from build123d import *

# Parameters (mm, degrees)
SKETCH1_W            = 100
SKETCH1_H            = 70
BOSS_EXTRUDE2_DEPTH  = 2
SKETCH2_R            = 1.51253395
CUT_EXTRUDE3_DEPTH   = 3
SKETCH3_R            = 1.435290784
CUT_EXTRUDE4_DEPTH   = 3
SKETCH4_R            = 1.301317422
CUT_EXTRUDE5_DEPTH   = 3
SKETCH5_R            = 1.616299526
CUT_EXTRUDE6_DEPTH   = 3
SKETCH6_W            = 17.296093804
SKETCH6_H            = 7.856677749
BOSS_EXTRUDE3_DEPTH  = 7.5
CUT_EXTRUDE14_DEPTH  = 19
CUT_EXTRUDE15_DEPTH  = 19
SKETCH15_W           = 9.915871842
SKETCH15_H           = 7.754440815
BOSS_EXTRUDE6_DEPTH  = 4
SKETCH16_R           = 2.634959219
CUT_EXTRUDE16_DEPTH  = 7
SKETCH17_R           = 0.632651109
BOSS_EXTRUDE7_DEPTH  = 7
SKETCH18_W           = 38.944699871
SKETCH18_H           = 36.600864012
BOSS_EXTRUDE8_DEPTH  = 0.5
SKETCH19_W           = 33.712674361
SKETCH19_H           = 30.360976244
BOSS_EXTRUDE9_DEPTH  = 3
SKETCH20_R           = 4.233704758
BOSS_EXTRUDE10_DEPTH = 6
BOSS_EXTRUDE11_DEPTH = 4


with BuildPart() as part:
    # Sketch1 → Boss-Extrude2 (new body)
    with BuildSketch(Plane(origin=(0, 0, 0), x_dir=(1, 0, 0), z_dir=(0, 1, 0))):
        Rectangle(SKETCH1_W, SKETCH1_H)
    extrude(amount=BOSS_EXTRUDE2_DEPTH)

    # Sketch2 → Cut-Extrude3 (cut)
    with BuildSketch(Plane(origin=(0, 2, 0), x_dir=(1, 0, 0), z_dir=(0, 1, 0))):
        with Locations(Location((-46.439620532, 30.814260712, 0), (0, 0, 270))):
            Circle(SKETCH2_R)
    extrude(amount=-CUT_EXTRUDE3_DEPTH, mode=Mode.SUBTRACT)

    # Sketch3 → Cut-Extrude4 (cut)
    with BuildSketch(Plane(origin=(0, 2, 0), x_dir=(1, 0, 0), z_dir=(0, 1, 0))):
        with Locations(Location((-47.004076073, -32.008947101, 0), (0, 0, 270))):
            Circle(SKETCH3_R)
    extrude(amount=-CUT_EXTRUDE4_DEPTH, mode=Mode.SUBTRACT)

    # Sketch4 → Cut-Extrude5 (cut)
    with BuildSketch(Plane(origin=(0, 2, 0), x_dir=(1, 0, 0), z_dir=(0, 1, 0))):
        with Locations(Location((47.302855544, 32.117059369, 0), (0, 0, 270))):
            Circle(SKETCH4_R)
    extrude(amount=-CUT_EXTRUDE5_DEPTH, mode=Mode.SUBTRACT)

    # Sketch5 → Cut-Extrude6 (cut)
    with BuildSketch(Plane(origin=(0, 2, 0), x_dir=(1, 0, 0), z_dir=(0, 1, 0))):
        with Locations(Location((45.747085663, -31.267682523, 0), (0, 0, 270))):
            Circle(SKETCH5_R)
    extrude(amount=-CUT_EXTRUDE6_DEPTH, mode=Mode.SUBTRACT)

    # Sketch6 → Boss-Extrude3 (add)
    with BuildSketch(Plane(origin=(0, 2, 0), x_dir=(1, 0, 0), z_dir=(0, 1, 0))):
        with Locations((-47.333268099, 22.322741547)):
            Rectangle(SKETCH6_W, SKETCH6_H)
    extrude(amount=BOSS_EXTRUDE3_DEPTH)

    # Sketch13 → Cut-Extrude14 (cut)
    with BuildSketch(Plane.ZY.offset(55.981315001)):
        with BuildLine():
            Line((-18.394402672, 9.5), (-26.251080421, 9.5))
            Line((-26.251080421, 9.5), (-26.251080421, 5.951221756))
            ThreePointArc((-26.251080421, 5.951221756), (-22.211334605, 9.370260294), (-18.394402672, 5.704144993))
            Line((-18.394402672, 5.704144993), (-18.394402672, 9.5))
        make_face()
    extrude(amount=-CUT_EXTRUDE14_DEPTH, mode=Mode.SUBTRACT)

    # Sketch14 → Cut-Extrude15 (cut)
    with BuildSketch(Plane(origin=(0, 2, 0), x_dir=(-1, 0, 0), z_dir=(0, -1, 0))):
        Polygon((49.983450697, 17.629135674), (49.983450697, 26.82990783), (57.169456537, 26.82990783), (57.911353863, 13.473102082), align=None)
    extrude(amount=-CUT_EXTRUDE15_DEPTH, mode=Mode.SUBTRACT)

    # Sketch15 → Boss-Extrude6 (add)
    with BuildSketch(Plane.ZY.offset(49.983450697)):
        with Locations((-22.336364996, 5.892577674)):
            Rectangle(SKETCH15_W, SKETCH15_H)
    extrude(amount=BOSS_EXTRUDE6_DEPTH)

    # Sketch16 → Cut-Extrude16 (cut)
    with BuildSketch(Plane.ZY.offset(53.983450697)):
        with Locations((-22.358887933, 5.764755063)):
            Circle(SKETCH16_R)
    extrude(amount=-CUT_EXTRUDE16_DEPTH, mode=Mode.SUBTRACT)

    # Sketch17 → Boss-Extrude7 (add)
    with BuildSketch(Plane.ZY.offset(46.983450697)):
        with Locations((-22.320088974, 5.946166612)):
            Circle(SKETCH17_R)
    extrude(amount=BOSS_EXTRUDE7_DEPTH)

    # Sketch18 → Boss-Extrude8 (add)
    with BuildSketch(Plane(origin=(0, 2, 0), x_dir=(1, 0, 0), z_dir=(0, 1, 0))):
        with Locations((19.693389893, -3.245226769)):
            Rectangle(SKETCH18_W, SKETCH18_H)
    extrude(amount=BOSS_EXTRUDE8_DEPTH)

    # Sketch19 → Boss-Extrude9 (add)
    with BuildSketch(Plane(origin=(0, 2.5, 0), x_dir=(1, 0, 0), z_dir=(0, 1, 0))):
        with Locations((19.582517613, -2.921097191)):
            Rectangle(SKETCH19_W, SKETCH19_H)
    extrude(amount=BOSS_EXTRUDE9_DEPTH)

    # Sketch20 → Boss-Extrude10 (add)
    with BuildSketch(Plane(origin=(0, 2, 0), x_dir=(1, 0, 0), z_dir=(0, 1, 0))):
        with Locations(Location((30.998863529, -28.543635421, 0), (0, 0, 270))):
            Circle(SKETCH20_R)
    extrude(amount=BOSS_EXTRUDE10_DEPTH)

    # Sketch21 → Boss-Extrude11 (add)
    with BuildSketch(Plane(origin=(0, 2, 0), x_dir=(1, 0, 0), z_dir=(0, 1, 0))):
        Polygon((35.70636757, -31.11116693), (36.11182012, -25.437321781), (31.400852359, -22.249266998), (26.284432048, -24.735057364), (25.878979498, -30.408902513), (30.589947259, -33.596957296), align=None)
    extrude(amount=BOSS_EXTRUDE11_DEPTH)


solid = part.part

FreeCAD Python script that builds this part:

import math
import FreeCAD as App
import Part
import Sketcher

doc = App.newDocument("Part")
params = doc.addObject("Spreadsheet::Sheet", "Params")
for row, (alias, value) in enumerate([
    ("sketch1_width", "100 mm"),
    ("sketch1_height", "70 mm"),
    ("pad1_length", "2 mm"),
    ("pocket1_length", "3 mm"),
    ("pocket2_length", "3 mm"),
    ("pocket3_length", "3 mm"),
    ("pocket4_length", "3 mm"),
    ("pad2_length", "7.5 mm"),
    ("pocket5_length", "19 mm"),
    ("pocket6_length", "19 mm"),
    ("pad3_length", "4 mm"),
    ("pocket7_length", "7 mm"),
    ("pad4_length", "7 mm"),
    ("pad5_length", "0.5 mm"),
    ("pad6_length", "3 mm"),
    ("pad7_length", "6 mm"),
    ("pad8_length", "4 mm"),
], start=1):
    params.set(f"A{row}", alias)
    params.set(f"B{row}", "=" + value)
    params.setAlias(f"B{row}", alias)

body = doc.addObject("PartDesign::Body", "Body")

sketch1 = body.newObject("Sketcher::SketchObject", "Sketch")
sketch1.AttachmentSupport = (doc.getObject("XZ_Plane"), [""])
sketch1.MapMode = "FlatFace"
sketch1.addGeometry([
    Part.LineSegment(App.Vector(-50, -35, 0), App.Vector(-50, 35, 0)),
    Part.LineSegment(App.Vector(-50, 35, 0), App.Vector(50, 35, 0)),
    Part.LineSegment(App.Vector(50, 35, 0), App.Vector(50, -35, 0)),
    Part.LineSegment(App.Vector(50, -35, 0), App.Vector(-50, -35, 0)),
], False)
sketch1.addConstraint([
    Sketcher.Constraint("Coincident", 0, 2, 1, 1),
    Sketcher.Constraint("Coincident", 1, 2, 2, 1),
    Sketcher.Constraint("Coincident", 2, 2, 3, 1),
    Sketcher.Constraint("Coincident", 3, 2, 0, 1),
    Sketcher.Constraint("Vertical", 0),
    Sketcher.Constraint("Horizontal", 1),
    Sketcher.Constraint("Vertical", 2),
    Sketcher.Constraint("Horizontal", 3),
    Sketcher.Constraint("Symmetric", 0, 2, 2, 2, -1, 1),
    Sketcher.Constraint("DistanceX", 1, 1, 1, 2, 100.0),
    Sketcher.Constraint("DistanceY", 0, 1, 0, 2, 70.0),
])
sketch1.setExpression("Constraints[9]", "Params.sketch1_width")
sketch1.setExpression("Constraints[10]", "Params.sketch1_height")
pad1 = body.newObject("PartDesign::Pad", "Pad")
pad1.Profile = sketch1
pad1.setExpression("Length", "Params.pad1_length")
pad1.Reversed = True

sketch2 = body.newObject("Sketcher::SketchObject", "Sketch001")
sketch2.AttachmentSupport = (doc.getObject("XZ_Plane"), [""])
sketch2.MapMode = "FlatFace"
sketch2.AttachmentOffset = App.Placement(App.Vector(0, 0, -2), App.Rotation())
sketch2.addGeometry(Part.Circle(App.Vector(-46.4, -30.8, 0), App.Vector(0, 0, 1), 1.5), False)
sketch2.addConstraint([
    Sketcher.Constraint("Diameter", 0, 3.025068),
    Sketcher.Constraint("DistanceX", 0, 3, -1, 1, 46.439621),
    Sketcher.Constraint("DistanceY", 0, 3, -1, 1, 30.814261),
])
pocket1 = body.newObject("PartDesign::Pocket", "Pocket")
pocket1.Profile = sketch2
pocket1.setExpression("Length", "Params.pocket1_length")
pocket1.Reversed = True

sketch3 = body.newObject("Sketcher::SketchObject", "Sketch002")
sketch3.AttachmentSupport = (doc.getObject("XZ_Plane"), [""])
sketch3.MapMode = "FlatFace"
sketch3.AttachmentOffset = App.Placement(App.Vector(0, 0, -2), App.Rotation())
sketch3.addGeometry(Part.Circle(App.Vector(-47, 32, 0), App.Vector(0, 0, 1), 1.4), False)
sketch3.addConstraint([
    Sketcher.Constraint("Diameter", 0, 2.870582),
    Sketcher.Constraint("DistanceX", 0, 3, -1, 1, 47.004076),
    Sketcher.Constraint("DistanceY", -1, 1, 0, 3, 32.008947),
])
pocket2 = body.newObject("PartDesign::Pocket", "Pocket001")
pocket2.Profile = sketch3
pocket2.setExpression("Length", "Params.pocket2_length")
pocket2.Reversed = True

sketch4 = body.newObject("Sketcher::SketchObject", "Sketch003")
sketch4.AttachmentSupport = (doc.getObject("XZ_Plane"), [""])
sketch4.MapMode = "FlatFace"
sketch4.AttachmentOffset = App.Placement(App.Vector(0, 0, -2), App.Rotation())
sketch4.addGeometry(Part.Circle(App.Vector(47.3, -32.1, 0), App.Vector(0, 0, 1), 1.3), False)
sketch4.addConstraint([
    Sketcher.Constraint("Diameter", 0, 2.602635),
    Sketcher.Constraint("DistanceY", 0, 3, -1, 1, 32.117059),
    Sketcher.Constraint("DistanceX", -1, 1, 0, 3, 47.302856),
])
pocket3 = body.newObject("PartDesign::Pocket", "Pocket002")
pocket3.Profile = sketch4
pocket3.setExpression("Length", "Params.pocket3_length")
pocket3.Reversed = True

sketch5 = body.newObject("Sketcher::SketchObject", "Sketch004")
sketch5.AttachmentSupport = (doc.getObject("XZ_Plane"), [""])
sketch5.MapMode = "FlatFace"
sketch5.AttachmentOffset = App.Placement(App.Vector(0, 0, -2), App.Rotation())
sketch5.addGeometry(Part.Circle(App.Vector(45.7, 31.3, 0), App.Vector(0, 0, 1), 1.6), False)
sketch5.addConstraint([
    Sketcher.Constraint("Diameter", 0, 3.232599),
    Sketcher.Constraint("DistanceX", -1, 1, 0, 3, 45.747086),
    Sketcher.Constraint("DistanceY", -1, 1, 0, 3, 31.267683),
])
pocket4 = body.newObject("PartDesign::Pocket", "Pocket003")
pocket4.Profile = sketch5
pocket4.setExpression("Length", "Params.pocket4_length")
pocket4.Reversed = True

sketch6 = body.newObject("Sketcher::SketchObject", "Sketch005")
sketch6.AttachmentSupport = (doc.getObject("XZ_Plane"), [""])
sketch6.MapMode = "FlatFace"
sketch6.AttachmentOffset = App.Placement(App.Vector(0, 0, -2), App.Rotation())
sketch6.addGeometry([
    Part.LineSegment(App.Vector(-56, -26, 0), App.Vector(-56, -18, 0)),
    Part.LineSegment(App.Vector(-56, -18, 0), App.Vector(-39, -18, 0)),
    Part.LineSegment(App.Vector(-39, -18, 0), App.Vector(-39, -26, 0)),
    Part.LineSegment(App.Vector(-39, -26, 0), App.Vector(-56, -26, 0)),
], False)
sketch6.addConstraint([
    Sketcher.Constraint("Coincident", 0, 2, 1, 1),
    Sketcher.Constraint("Coincident", 1, 2, 2, 1),
    Sketcher.Constraint("Coincident", 2, 2, 3, 1),
    Sketcher.Constraint("Coincident", 3, 2, 0, 1),
    Sketcher.Constraint("Vertical", 0),
    Sketcher.Constraint("Horizontal", 1),
    Sketcher.Constraint("Vertical", 2),
    Sketcher.Constraint("Horizontal", 3),
    Sketcher.Constraint("DistanceX", 1, 1, 1, 2, 17.296094),
    Sketcher.Constraint("DistanceY", 0, 1, 0, 2, 7.856678),
    Sketcher.Constraint("DistanceX", 1, 2, -1, 1, 38.685221),
    Sketcher.Constraint("DistanceY", 2, 2, -1, 1, 26.25108),
])
pad2 = body.newObject("PartDesign::Pad", "Pad001")
pad2.Profile = sketch6
pad2.setExpression("Length", "Params.pad2_length")
pad2.Reversed = True

sketch7 = body.newObject("Sketcher::SketchObject", "Sketch006")
sketch7.AttachmentSupport = (doc.getObject("YZ_Plane"), [""])
sketch7.MapMode = "FlatFace"
sketch7.AttachmentOffset = App.Placement(App.Vector(0, 0, -55.981315), App.Rotation())
sketch7.addGeometry([
    Part.LineSegment(App.Vector(9.5, -18.4, 0), App.Vector(9.5, -26.3, 0)),
    Part.LineSegment(App.Vector(9.5, -26.3, 0), App.Vector(6, -26.3, 0)),
    Part.ArcOfCircle(Part.Circle(App.Vector(5.4, -22.3, 0), App.Vector(0, 0, 1), 4), math.radians(-82), math.radians(86)),
    Part.LineSegment(App.Vector(5.7, -18.4, 0), App.Vector(9.5, -18.4, 0)),
], False)
sketch7.addConstraint([
    Sketcher.Constraint("Coincident", 0, 2, 1, 1),
    Sketcher.Constraint("Coincident", 1, 2, 2, 1),
    Sketcher.Constraint("Coincident", 2, 2, 3, 1),
    Sketcher.Constraint("Coincident", 3, 2, 0, 1),
    Sketcher.Constraint("Vertical", 0),
    Sketcher.Constraint("Horizontal", 1),
    Sketcher.Constraint("Horizontal", 3),
    Sketcher.Constraint("DistanceX", -1, 1, 0, 2, 9.5),
    Sketcher.Constraint("Radius", 2, 3.951295),
    Sketcher.Constraint("DistanceX", 1, 2, 1, 1, 3.548778),
    Sketcher.Constraint("DistanceX", 3, 1, 3, 2, 3.795855),
    Sketcher.Constraint("DistanceY", 0, 2, 0, 1, 7.856678),
    Sketcher.Constraint("DistanceY", 0, 2, -1, 1, 26.25108),
])
pocket5 = body.newObject("PartDesign::Pocket", "Pocket004")
pocket5.Profile = sketch7
pocket5.setExpression("Length", "Params.pocket5_length")
pocket5.Reversed = True

sketch8 = body.newObject("Sketcher::SketchObject", "Sketch007")
sketch8.AttachmentSupport = (doc.getObject("XZ_Plane"), [""])
sketch8.MapMode = "FlatFace"
sketch8.AttachmentOffset = App.Placement(App.Vector(0, 0, -2), App.Rotation())
sketch8.addGeometry([
    Part.LineSegment(App.Vector(-50, -27, 0), App.Vector(-50, -18, 0)),
    Part.LineSegment(App.Vector(-50, -18, 0), App.Vector(-58, -13, 0)),
    Part.LineSegment(App.Vector(-58, -13, 0), App.Vector(-57, -27, 0)),
    Part.LineSegment(App.Vector(-57, -27, 0), App.Vector(-50, -27, 0)),
], False)
sketch8.addConstraint([
    Sketcher.Constraint("Coincident", 0, 2, 1, 1),
    Sketcher.Constraint("Coincident", 1, 2, 2, 1),
    Sketcher.Constraint("Coincident", 2, 2, 3, 1),
    Sketcher.Constraint("Coincident", 3, 2, 0, 1),
    Sketcher.Constraint("Vertical", 0),
    Sketcher.Constraint("Horizontal", 3),
    Sketcher.Constraint("DistanceX", 3, 1, 3, 2, 7.186006),
    Sketcher.Constraint("DistanceY", 0, 1, 0, 2, 9.200772),
    Sketcher.Constraint("DistanceX", 0, 2, -1, 1, 49.983451),
    Sketcher.Constraint("Distance", 1, 8.951216),
    Sketcher.Constraint("Distance", 2, 13.377394),
    Sketcher.Constraint("DistanceY", 0, 2, -1, 1, 17.629136),
])
pocket6 = body.newObject("PartDesign::Pocket", "Pocket005")
pocket6.Profile = sketch8
pocket6.setExpression("Length", "Params.pocket6_length")

sketch9 = body.newObject("Sketcher::SketchObject", "Sketch008")
sketch9.AttachmentSupport = (doc.getObject("YZ_Plane"), [""])
sketch9.MapMode = "FlatFace"
sketch9.AttachmentOffset = App.Placement(App.Vector(0, 0, -49.983451), App.Rotation())
sketch9.addGeometry([
    Part.LineSegment(App.Vector(10, -27, 0), App.Vector(2, -27, 0)),
    Part.LineSegment(App.Vector(2, -27, 0), App.Vector(2, -17, 0)),
    Part.LineSegment(App.Vector(2, -17, 0), App.Vector(10, -17, 0)),
    Part.LineSegment(App.Vector(10, -17, 0), App.Vector(10, -27, 0)),
], False)
sketch9.addConstraint([
    Sketcher.Constraint("Coincident", 0, 2, 1, 1),
    Sketcher.Constraint("Coincident", 1, 2, 2, 1),
    Sketcher.Constraint("Coincident", 2, 2, 3, 1),
    Sketcher.Constraint("Coincident", 3, 2, 0, 1),
    Sketcher.Constraint("Horizontal", 0),
    Sketcher.Constraint("Vertical", 1),
    Sketcher.Constraint("Horizontal", 2),
    Sketcher.Constraint("Vertical", 3),
    Sketcher.Constraint("DistanceX", 0, 2, 0, 1, 7.754441),
    Sketcher.Constraint("DistanceY", 1, 1, 1, 2, 9.915872),
    Sketcher.Constraint("DistanceY", 0, 2, -1, 1, 27.294301),
    Sketcher.Constraint("DistanceX", -1, 1, 2, 2, 9.769798),
])
pad3 = body.newObject("PartDesign::Pad", "Pad002")
pad3.Profile = sketch9
pad3.setExpression("Length", "Params.pad3_length")
pad3.Reversed = True

sketch10 = body.newObject("Sketcher::SketchObject", "Sketch009")
sketch10.AttachmentSupport = (doc.getObject("YZ_Plane"), [""])
sketch10.MapMode = "FlatFace"
sketch10.AttachmentOffset = App.Placement(App.Vector(0, 0, -53.983451), App.Rotation())
sketch10.addGeometry(Part.Circle(App.Vector(5.8, -22.4, 0), App.Vector(0, 0, 1), 2.6), False)
sketch10.addConstraint([
    Sketcher.Constraint("Diameter", 0, 5.269918),
    Sketcher.Constraint("DistanceX", -1, 1, 0, 3, 5.764755),
    Sketcher.Constraint("DistanceY", 0, 3, -1, 1, 22.358888),
])
pocket7 = body.newObject("PartDesign::Pocket", "Pocket006")
pocket7.Profile = sketch10
pocket7.setExpression("Length", "Params.pocket7_length")
pocket7.Reversed = True

sketch11 = body.newObject("Sketcher::SketchObject", "Sketch010")
sketch11.AttachmentSupport = (doc.getObject("YZ_Plane"), [""])
sketch11.MapMode = "FlatFace"
sketch11.AttachmentOffset = App.Placement(App.Vector(0, 0, -46.983451), App.Rotation())
sketch11.addGeometry(Part.Circle(App.Vector(5.9, -22.3, 0), App.Vector(0, 0, 1), 0.6), False)
sketch11.addConstraint([
    Sketcher.Constraint("Diameter", 0, 1.265302),
    Sketcher.Constraint("DistanceY", 0, 3, -1, 1, 22.320089),
    Sketcher.Constraint("DistanceX", -1, 1, 0, 3, 5.946167),
])
pad4 = body.newObject("PartDesign::Pad", "Pad003")
pad4.Profile = sketch11
pad4.setExpression("Length", "Params.pad4_length")
pad4.Reversed = True

sketch12 = body.newObject("Sketcher::SketchObject", "Sketch011")
sketch12.AttachmentSupport = (doc.getObject("XZ_Plane"), [""])
sketch12.MapMode = "FlatFace"
sketch12.AttachmentOffset = App.Placement(App.Vector(0, 0, -2), App.Rotation())
sketch12.addGeometry([
    Part.LineSegment(App.Vector(0, -15, 0), App.Vector(0, 22, 0)),
    Part.LineSegment(App.Vector(0, 22, 0), App.Vector(39, 22, 0)),
    Part.LineSegment(App.Vector(39, 22, 0), App.Vector(39, -15, 0)),
    Part.LineSegment(App.Vector(39, -15, 0), App.Vector(0, -15, 0)),
], False)
sketch12.addConstraint([
    Sketcher.Constraint("Coincident", 0, 2, 1, 1),
    Sketcher.Constraint("Coincident", 1, 2, 2, 1),
    Sketcher.Constraint("Coincident", 2, 2, 3, 1),
    Sketcher.Constraint("Coincident", 3, 2, 0, 1),
    Sketcher.Constraint("Vertical", 0),
    Sketcher.Constraint("Horizontal", 1),
    Sketcher.Constraint("Vertical", 2),
    Sketcher.Constraint("Horizontal", 3),
    Sketcher.Constraint("DistanceX", 1, 1, 1, 2, 38.9447),
    Sketcher.Constraint("DistanceY", 0, 1, 0, 2, 36.600864),
    Sketcher.Constraint("DistanceX", -1, 1, 0, 2, 0.22104),
    Sketcher.Constraint("DistanceY", -1, 1, 0, 2, 21.545659),
])
pad5 = body.newObject("PartDesign::Pad", "Pad004")
pad5.Profile = sketch12
pad5.setExpression("Length", "Params.pad5_length")
pad5.Reversed = True

sketch13 = body.newObject("Sketcher::SketchObject", "Sketch012")
sketch13.AttachmentSupport = (doc.getObject("XZ_Plane"), [""])
sketch13.MapMode = "FlatFace"
sketch13.AttachmentOffset = App.Placement(App.Vector(0, 0, -2.5), App.Rotation())
sketch13.addGeometry([
    Part.LineSegment(App.Vector(3, -12, 0), App.Vector(3, 18, 0)),
    Part.LineSegment(App.Vector(3, 18, 0), App.Vector(36, 18, 0)),
    Part.LineSegment(App.Vector(36, 18, 0), App.Vector(36, -12, 0)),
    Part.LineSegment(App.Vector(36, -12, 0), App.Vector(3, -12, 0)),
], False)
sketch13.addConstraint([
    Sketcher.Constraint("Coincident", 0, 2, 1, 1),
    Sketcher.Constraint("Coincident", 1, 2, 2, 1),
    Sketcher.Constraint("Coincident", 2, 2, 3, 1),
    Sketcher.Constraint("Coincident", 3, 2, 0, 1),
    Sketcher.Constraint("Vertical", 0),
    Sketcher.Constraint("Horizontal", 1),
    Sketcher.Constraint("Vertical", 2),
    Sketcher.Constraint("Horizontal", 3),
    Sketcher.Constraint("DistanceX", 1, 1, 1, 2, 33.712674),
    Sketcher.Constraint("DistanceY", 0, 1, 0, 2, 30.360976),
    Sketcher.Constraint("DistanceX", -1, 1, 0, 2, 2.72618),
    Sketcher.Constraint("DistanceY", 2, 2, -1, 1, 12.259391),
])
pad6 = body.newObject("PartDesign::Pad", "Pad005")
pad6.Profile = sketch13
pad6.setExpression("Length", "Params.pad6_length")
pad6.Reversed = True

sketch14 = body.newObject("Sketcher::SketchObject", "Sketch013")
sketch14.AttachmentSupport = (doc.getObject("XZ_Plane"), [""])
sketch14.MapMode = "FlatFace"
sketch14.AttachmentOffset = App.Placement(App.Vector(0, 0, -2), App.Rotation())
sketch14.addGeometry(Part.Circle(App.Vector(31, 28.5, 0), App.Vector(0, 0, 1), 4.2), False)
sketch14.addConstraint([
    Sketcher.Constraint("Diameter", 0, 8.46741),
    Sketcher.Constraint("DistanceX", -1, 1, 0, 3, 30.998864),
    Sketcher.Constraint("DistanceY", -1, 1, 0, 3, 28.543635),
])
pad7 = body.newObject("PartDesign::Pad", "Pad006")
pad7.Profile = sketch14
pad7.setExpression("Length", "Params.pad7_length")
pad7.Reversed = True

sketch15 = body.newObject("Sketcher::SketchObject", "Sketch014")
sketch15.AttachmentSupport = (doc.getObject("XZ_Plane"), [""])
sketch15.MapMode = "FlatFace"
sketch15.AttachmentOffset = App.Placement(App.Vector(0, 0, -2), App.Rotation())
sketch15.addGeometry([
    Part.LineSegment(App.Vector(36, 31, 0), App.Vector(36, 25, 0)),
    Part.LineSegment(App.Vector(36, 25, 0), App.Vector(31, 22, 0)),
    Part.LineSegment(App.Vector(31, 22, 0), App.Vector(26, 25, 0)),
    Part.LineSegment(App.Vector(26, 25, 0), App.Vector(26, 30, 0)),
    Part.LineSegment(App.Vector(26, 30, 0), App.Vector(31, 34, 0)),
    Part.LineSegment(App.Vector(31, 34, 0), App.Vector(36, 31, 0)),
], False)
sketch15.addConstraint([
    Sketcher.Constraint("Coincident", 0, 2, 1, 1),
    Sketcher.Constraint("Coincident", 1, 2, 2, 1),
    Sketcher.Constraint("Coincident", 2, 2, 3, 1),
    Sketcher.Constraint("Coincident", 3, 2, 4, 1),
    Sketcher.Constraint("Coincident", 4, 2, 5, 1),
    Sketcher.Constraint("Coincident", 5, 2, 0, 1),
    Sketcher.Constraint("Parallel", 0, 3),
    Sketcher.Constraint("Parallel", 1, 4),
    Sketcher.Constraint("Parallel", 2, 5),
    Sketcher.Constraint("Equal", 0, 1),
    Sketcher.Constraint("Equal", 1, 2),
    Sketcher.Constraint("Equal", 2, 3),
    Sketcher.Constraint("DistanceY", 2, 2, 4, 2, 8.8619),
    Sketcher.Constraint("DistanceX", -1, 1, 0, 2, 36.11182),
    Sketcher.Constraint("DistanceY", -1, 1, 0, 2, 25.437322),
    Sketcher.Constraint("DistanceX", -1, 1, 3, 2, 25.878979),
    Sketcher.Constraint("DistanceX", 2, 2, 1, 2, 5.11642),
    Sketcher.Constraint("DistanceY", 1, 2, 2, 2, 2.48579),
])
pad8 = body.newObject("PartDesign::Pad", "Pad007")
pad8.Profile = sketch15
pad8.setExpression("Length", "Params.pad8_length")
pad8.Reversed = True

doc.recompute()
